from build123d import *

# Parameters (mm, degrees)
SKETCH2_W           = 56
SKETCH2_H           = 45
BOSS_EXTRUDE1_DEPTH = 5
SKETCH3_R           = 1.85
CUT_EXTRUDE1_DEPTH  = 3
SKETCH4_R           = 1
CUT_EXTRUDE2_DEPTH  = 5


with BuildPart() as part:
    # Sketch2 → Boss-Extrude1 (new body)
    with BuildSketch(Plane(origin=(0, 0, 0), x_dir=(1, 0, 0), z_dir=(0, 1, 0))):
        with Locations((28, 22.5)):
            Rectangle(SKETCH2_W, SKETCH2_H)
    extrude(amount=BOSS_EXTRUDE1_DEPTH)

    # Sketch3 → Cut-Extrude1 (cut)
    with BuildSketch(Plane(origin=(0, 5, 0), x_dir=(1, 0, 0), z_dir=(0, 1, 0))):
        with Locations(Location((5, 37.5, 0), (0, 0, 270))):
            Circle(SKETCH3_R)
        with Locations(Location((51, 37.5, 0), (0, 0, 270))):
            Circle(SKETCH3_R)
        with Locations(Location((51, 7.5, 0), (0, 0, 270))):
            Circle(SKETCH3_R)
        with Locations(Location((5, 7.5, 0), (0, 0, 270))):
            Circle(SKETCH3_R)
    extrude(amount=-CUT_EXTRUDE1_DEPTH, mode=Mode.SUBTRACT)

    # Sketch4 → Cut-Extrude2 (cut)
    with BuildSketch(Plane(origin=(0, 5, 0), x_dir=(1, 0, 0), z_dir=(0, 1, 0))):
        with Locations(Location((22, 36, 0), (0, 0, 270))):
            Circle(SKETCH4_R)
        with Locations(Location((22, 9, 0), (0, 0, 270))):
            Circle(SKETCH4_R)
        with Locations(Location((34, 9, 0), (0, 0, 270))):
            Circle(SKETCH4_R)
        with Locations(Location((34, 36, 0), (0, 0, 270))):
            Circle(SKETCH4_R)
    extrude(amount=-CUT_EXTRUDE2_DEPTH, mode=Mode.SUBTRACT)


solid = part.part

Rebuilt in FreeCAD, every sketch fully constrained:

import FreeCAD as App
import Part
import Sketcher
Q = App.Units.Quantity


def add_polygon(sketch, points):
    """Adds a closed chain of lines whose ends are joined by coincident constraints."""
    first, n = sketch.GeometryCount, len(points)
    for a, b in zip(points, points[1:] + points[:1]):
        sketch.addGeometry(Part.LineSegment(App.Vector(*a, 0), App.Vector(*b, 0)), False)
    for i in range(n):
        sketch.addConstraint(Sketcher.Constraint("Coincident", first + i, 2, first + (i + 1) % n, 1))

doc = App.newDocument("Part")
params = doc.addObject("Spreadsheet::Sheet", "Params")
for row, (alias, value) in enumerate([
    ("sketch1_width", "56 mm"),
    ("sketch1_height", "45 mm"),
    ("pad1_length", "5 mm"),
    ("sketch2_diameter", "3.7 mm"),
    ("pocket1_length", "3 mm"),
    ("sketch3_diameter", "2 mm"),
    ("pocket2_length", "5 mm"),
], start=1):
    params.set(f"A{row}", alias)
    params.set(f"B{row}", "=" + value)
    params.setAlias(f"B{row}", alias)

body = doc.addObject("PartDesign::Body", "Body")

# Sketch on XZ plane
sketch1 = doc.addObject("Sketcher::SketchObject", "Sketch")
body.addObject(sketch1)
sketch1.AttachmentSupport = (doc.XZ_Plane, [""])
sketch1.MapMode = "FlatFace"
add_polygon(sketch1, [(0, -45), (0, 0), (56, 0), (56, -45)])  # lines 0-3
sketch1.addConstraint([
    Sketcher.Constraint("Vertical", 0),
    Sketcher.Constraint("Horizontal", 1),
    Sketcher.Constraint("Vertical", 2),
    Sketcher.Constraint("Horizontal", 3),
    Sketcher.Constraint("Coincident", 0, 2, -1, 1),
    Sketcher.Constraint("DistanceX", 1, 1, 1, 2, Q("56 mm")),
    Sketcher.Constraint("DistanceY", 0, 1, 0, 2, Q("45 mm")),
])
sketch1.setExpression("Constraints[9]", "Params.sketch1_width")
sketch1.setExpression("Constraints[10]", "Params.sketch1_height")
pad1 = doc.addObject("PartDesign::Pad", "Pad")
body.addObject(pad1)
pad1.Profile = sketch1
pad1.setExpression("Length", "Params.pad1_length")
pad1.Reversed = True

# Sketch on XZ plane
sketch2 = doc.addObject("Sketcher::SketchObject", "Sketch001")
body.addObject(sketch2)
sketch2.AttachmentSupport = (doc.XZ_Plane, [""])
sketch2.MapMode = "FlatFace"
sketch2.AttachmentOffset = App.Placement(App.Vector(0, 0, -5), App.Rotation())
sketch2.addGeometry([
    Part.Circle(App.Vector(5, -37.5, 0), App.Vector(0, 0, 1), 1.9),
    Part.Circle(App.Vector(51, -37.5, 0), App.Vector(0, 0, 1), 1.9),
    Part.Circle(App.Vector(51, -7.5, 0), App.Vector(0, 0, 1), 1.9),
    Part.Circle(App.Vector(5, -7.5, 0), App.Vector(0, 0, 1), 1.9),
], False)
sketch2.addConstraint([
    Sketcher.Constraint("Equal", 0, 1),
    Sketcher.Constraint("Equal", 1, 2),
    Sketcher.Constraint("Equal", 2, 3),
    Sketcher.Constraint("Horizontal", 0, 3, 1, 3),
    Sketcher.Constraint("Horizontal", 2, 3, 3, 3),
    Sketcher.Constraint("Vertical", 1, 3, 2, 3),
    Sketcher.Constraint("Vertical", 0, 3, 3, 3),
    Sketcher.Constraint("Diameter", 0, Q("3.7 mm")),
    Sketcher.Constraint("DistanceX", -1, 1, 0, 3, Q("5 mm")),
    Sketcher.Constraint("DistanceX", -1, 1, 1, 3, Q("51 mm")),
    Sketcher.Constraint("DistanceY", 1, 3, 2, 3, Q("30 mm")),
    Sketcher.Constraint("DistanceY", 0, 3, -1, 1, Q("37.5 mm")),
])
sketch2.setExpression("Constraints[7]", "Params.sketch2_diameter")
pocket1 = doc.addObject("PartDesign::Pocket", "Pocket")
body.addObject(pocket1)
pocket1.Profile = sketch2
pocket1.setExpression("Length", "Params.pocket1_length")
pocket1.Reversed = True

# Sketch on XZ plane
sketch3 = doc.addObject("Sketcher::SketchObject", "Sketch002")
body.addObject(sketch3)
sketch3.AttachmentSupport = (doc.XZ_Plane, [""])
sketch3.MapMode = "FlatFace"
sketch3.AttachmentOffset = App.Placement(App.Vector(0, 0, -5), App.Rotation())
sketch3.addGeometry([
    Part.Circle(App.Vector(22, -36, 0), App.Vector(0, 0, 1), 1),
    Part.Circle(App.Vector(22, -9, 0), App.Vector(0, 0, 1), 1),
    Part.Circle(App.Vector(34, -9, 0), App.Vector(0, 0, 1), 1),
    Part.Circle(App.Vector(34, -36, 0), App.Vector(0, 0, 1), 1),
], False)
sketch3.addConstraint([
    Sketcher.Constraint("Equal", 0, 1),
    Sketcher.Constraint("Equal", 1, 2),
    Sketcher.Constraint("Equal", 2, 3),
    Sketcher.Constraint("Horizontal", 1, 3, 2, 3),
    Sketcher.Constraint("Horizontal", 0, 3, 3, 3),
    Sketcher.Constraint("Vertical", 0, 3, 1, 3),
    Sketcher.Constraint("Vertical", 2, 3, 3, 3),
    Sketcher.Constraint("Diameter", 0, Q("2 mm")),
    Sketcher.Constraint("DistanceX", -1, 1, 0, 3, Q("22 mm")),
    Sketcher.Constraint("DistanceY", 0, 3, -1, 1, Q("36 mm")),
    Sketcher.Constraint("DistanceY", 1, 3, -1, 1, Q("9 mm")),
    Sketcher.Constraint("DistanceX", -1, 1, 2, 3, Q("34 mm")),
])
sketch3.setExpression("Constraints[7]", "Params.sketch3_diameter")
pocket2 = doc.addObject("PartDesign::Pocket", "Pocket001")
body.addObject(pocket2)
pocket2.Profile = sketch3
pocket2.setExpression("Length", "Params.pocket2_length")
pocket2.Reversed = True

doc.recompute()
